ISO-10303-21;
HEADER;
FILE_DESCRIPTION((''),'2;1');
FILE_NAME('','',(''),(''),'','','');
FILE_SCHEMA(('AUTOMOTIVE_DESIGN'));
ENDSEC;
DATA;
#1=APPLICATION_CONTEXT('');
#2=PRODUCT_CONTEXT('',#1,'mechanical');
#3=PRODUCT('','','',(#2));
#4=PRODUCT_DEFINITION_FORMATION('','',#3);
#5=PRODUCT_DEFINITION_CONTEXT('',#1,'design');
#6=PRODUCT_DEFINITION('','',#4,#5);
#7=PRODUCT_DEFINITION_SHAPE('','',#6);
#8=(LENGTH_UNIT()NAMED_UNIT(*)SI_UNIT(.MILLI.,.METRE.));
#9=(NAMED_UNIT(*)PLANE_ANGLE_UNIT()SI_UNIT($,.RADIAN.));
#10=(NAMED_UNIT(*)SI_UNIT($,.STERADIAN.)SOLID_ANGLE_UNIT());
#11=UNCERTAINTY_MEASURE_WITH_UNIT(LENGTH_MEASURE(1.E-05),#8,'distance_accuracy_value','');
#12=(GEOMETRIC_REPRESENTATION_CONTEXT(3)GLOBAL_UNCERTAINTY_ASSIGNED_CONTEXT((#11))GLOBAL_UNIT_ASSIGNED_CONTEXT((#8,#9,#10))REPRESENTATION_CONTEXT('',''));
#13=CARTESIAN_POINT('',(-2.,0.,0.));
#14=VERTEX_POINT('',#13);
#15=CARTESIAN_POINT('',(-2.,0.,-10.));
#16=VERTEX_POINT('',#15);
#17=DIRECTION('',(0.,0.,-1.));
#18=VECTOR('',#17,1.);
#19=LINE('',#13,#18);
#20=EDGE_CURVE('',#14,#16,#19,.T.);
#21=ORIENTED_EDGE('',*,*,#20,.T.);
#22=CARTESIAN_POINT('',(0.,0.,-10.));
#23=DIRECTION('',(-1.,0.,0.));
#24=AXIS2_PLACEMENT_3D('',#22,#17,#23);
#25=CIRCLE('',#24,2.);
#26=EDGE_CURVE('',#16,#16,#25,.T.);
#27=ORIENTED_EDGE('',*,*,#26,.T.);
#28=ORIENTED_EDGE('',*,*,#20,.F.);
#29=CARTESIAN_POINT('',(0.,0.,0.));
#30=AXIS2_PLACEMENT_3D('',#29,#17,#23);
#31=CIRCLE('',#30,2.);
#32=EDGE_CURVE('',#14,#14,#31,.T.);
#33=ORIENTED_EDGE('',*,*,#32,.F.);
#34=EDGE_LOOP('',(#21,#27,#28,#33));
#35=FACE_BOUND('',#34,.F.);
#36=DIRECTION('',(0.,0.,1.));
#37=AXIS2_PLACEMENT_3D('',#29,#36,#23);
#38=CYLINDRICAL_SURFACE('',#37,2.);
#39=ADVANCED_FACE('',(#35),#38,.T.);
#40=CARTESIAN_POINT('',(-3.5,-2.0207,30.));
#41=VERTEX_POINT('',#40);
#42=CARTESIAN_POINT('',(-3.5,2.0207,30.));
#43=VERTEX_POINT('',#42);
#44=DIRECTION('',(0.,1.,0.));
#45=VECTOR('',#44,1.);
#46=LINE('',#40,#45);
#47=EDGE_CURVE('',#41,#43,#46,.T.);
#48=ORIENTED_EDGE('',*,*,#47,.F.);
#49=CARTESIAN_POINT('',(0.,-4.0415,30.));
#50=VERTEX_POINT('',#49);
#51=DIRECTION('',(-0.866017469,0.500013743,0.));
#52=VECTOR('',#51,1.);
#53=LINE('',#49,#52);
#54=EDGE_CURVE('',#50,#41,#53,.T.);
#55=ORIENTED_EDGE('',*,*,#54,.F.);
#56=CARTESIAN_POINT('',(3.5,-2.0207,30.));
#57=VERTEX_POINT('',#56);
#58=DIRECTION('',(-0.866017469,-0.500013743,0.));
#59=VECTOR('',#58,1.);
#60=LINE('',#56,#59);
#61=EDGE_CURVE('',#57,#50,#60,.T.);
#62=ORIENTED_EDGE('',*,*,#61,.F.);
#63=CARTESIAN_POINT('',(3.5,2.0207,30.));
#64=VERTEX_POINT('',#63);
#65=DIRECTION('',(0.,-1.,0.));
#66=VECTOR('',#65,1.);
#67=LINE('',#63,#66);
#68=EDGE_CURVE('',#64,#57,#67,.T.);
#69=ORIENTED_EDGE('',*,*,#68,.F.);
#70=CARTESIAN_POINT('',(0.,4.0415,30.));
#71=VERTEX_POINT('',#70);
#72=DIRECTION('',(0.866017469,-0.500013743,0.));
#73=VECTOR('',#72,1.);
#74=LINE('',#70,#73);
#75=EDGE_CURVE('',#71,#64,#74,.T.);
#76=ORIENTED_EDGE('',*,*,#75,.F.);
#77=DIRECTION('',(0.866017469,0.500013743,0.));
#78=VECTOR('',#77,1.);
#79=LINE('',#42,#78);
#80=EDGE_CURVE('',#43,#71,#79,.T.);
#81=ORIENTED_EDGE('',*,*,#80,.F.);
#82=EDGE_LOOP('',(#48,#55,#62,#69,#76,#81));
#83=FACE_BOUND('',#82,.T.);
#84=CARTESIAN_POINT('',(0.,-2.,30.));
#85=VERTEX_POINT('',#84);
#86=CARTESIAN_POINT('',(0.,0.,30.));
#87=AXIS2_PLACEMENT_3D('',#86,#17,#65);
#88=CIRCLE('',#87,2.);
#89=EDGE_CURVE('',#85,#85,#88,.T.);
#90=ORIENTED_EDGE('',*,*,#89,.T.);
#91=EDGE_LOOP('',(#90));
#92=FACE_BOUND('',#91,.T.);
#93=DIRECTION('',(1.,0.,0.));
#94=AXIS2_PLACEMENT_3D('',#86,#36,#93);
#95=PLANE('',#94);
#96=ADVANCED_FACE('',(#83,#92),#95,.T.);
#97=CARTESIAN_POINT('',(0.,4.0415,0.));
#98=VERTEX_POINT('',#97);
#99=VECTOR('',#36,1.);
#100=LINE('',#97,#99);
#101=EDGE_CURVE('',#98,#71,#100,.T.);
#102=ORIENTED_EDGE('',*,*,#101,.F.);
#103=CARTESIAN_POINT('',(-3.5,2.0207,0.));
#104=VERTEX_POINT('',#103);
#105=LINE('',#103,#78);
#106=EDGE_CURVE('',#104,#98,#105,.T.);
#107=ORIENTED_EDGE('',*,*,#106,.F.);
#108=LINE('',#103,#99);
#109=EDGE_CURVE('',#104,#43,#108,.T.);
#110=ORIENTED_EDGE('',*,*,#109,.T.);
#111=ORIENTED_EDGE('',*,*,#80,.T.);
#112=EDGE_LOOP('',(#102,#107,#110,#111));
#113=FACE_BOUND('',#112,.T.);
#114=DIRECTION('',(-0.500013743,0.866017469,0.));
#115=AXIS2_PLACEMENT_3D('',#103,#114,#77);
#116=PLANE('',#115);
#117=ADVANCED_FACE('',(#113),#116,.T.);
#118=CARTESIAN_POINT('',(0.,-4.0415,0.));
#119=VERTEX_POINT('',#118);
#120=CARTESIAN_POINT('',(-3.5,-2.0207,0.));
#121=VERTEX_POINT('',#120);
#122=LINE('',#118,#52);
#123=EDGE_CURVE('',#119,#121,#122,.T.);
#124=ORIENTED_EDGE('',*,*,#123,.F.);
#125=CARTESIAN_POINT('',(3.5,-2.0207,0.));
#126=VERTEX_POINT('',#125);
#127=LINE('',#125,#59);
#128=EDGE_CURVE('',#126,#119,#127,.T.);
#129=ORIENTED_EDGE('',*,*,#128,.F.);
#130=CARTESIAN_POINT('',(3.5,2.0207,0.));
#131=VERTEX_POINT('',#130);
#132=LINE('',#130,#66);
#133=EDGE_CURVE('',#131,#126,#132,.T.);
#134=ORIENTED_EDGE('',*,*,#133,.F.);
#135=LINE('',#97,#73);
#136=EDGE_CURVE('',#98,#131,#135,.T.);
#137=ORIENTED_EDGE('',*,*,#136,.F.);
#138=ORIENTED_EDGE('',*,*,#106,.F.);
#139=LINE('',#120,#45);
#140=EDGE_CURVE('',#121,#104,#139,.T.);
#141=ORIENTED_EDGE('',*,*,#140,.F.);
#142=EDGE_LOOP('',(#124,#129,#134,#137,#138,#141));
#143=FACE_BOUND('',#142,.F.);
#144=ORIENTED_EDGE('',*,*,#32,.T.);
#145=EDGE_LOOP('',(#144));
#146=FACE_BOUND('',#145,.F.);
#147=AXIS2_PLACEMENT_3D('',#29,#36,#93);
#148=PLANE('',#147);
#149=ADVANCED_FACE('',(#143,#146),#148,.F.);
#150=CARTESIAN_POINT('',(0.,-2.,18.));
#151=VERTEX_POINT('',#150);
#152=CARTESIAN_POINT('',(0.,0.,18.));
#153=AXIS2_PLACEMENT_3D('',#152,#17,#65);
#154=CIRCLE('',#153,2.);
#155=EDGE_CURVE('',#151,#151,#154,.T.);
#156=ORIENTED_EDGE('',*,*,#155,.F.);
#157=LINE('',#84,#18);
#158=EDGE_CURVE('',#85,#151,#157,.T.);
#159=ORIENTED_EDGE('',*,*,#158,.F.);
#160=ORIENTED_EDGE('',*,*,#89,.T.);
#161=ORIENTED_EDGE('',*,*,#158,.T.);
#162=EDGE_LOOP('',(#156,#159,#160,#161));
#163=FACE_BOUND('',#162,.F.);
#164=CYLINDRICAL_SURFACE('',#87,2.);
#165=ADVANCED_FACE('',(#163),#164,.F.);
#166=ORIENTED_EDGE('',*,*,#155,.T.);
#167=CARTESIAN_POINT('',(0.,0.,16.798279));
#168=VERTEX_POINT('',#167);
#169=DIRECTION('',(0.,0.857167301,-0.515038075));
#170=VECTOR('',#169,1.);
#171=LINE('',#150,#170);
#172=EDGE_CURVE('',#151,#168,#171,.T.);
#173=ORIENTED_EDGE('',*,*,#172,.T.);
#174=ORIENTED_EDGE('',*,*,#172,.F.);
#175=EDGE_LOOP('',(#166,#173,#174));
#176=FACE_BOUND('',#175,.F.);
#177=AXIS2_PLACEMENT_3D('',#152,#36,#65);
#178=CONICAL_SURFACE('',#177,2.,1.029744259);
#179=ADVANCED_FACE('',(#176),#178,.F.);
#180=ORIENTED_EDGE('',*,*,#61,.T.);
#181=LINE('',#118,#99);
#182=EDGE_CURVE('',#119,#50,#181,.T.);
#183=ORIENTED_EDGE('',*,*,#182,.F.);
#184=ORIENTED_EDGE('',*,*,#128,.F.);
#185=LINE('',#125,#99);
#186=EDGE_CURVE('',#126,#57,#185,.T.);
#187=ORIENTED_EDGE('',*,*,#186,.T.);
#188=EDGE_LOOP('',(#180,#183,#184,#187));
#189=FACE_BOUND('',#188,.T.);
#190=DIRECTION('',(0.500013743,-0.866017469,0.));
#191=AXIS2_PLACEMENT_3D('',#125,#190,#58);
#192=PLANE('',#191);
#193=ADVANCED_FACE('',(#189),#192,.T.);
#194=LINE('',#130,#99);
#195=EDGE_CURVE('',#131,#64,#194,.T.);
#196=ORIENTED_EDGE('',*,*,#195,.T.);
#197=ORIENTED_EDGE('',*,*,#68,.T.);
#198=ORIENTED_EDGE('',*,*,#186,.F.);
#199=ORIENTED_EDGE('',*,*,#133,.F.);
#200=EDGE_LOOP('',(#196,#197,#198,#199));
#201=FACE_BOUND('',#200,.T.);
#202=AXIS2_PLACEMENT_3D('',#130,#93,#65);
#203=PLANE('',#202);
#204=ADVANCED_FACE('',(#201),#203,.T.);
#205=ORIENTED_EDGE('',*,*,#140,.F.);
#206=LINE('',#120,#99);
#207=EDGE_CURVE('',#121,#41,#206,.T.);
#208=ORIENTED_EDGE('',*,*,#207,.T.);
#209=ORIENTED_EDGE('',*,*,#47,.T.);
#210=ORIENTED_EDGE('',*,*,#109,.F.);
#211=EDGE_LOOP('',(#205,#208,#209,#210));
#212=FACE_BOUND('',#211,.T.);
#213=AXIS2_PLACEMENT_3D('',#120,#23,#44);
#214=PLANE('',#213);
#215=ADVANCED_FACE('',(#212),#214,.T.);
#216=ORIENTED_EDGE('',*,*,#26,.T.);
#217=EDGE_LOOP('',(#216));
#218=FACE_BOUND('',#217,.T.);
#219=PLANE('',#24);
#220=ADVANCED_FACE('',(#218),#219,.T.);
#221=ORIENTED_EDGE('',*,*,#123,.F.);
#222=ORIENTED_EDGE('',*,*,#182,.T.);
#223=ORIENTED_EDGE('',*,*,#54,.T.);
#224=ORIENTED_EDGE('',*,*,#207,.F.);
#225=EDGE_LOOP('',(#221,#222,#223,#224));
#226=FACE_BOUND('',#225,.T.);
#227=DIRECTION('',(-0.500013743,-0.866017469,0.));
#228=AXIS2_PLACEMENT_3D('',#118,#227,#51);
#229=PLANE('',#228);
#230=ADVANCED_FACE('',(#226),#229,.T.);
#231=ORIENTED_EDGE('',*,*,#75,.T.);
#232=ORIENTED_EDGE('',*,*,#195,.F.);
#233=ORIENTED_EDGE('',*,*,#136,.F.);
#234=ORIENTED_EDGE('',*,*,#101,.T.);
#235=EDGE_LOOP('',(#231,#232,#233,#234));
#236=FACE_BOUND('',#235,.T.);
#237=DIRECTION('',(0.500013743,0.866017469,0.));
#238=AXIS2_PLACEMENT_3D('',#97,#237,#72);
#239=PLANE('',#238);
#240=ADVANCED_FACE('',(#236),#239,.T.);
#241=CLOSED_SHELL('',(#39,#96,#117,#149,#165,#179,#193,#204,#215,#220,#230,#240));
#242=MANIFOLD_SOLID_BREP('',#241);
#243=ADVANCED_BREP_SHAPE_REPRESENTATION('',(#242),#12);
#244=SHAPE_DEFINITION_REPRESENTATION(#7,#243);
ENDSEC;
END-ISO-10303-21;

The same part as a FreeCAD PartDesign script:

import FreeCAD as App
import Part
import Sketcher

V = App.Vector
Q = App.Units.Quantity

doc = App.newDocument("Part")
params = doc.addObject("Spreadsheet::Sheet", "Params")
for row, (alias, value) in enumerate([
    ("pad1_length", "30 mm"),
    ("sketch2_diameter", "4 mm"),
    ("hole_diameter", "4 mm"),
    ("hole_depth", "12 mm"),
    ("sketch3_diameter", "4 mm"),
    ("pad2_length", "10 mm"),
], start=1):
    params.set(f"A{row}", alias)
    params.set(f"B{row}", "=" + value)
    params.setAlias(f"B{row}", alias)

body = doc.addObject("PartDesign::Body", "Body")

# Sketch on XY plane
sketch1 = doc.addObject("Sketcher::SketchObject", "Sketch")
body.addObject(sketch1)
sketch1.AttachmentSupport = (doc.XY_Plane, [""])
sketch1.MapMode = "FlatFace"
sketch1.addGeometry([
    Part.LineSegment(V(0, -4, 0), V(3.5, -2, 0)),  # 0
    Part.LineSegment(V(3.5, -2, 0), V(3.5, 2, 0)),  # 1
    Part.LineSegment(V(3.5, 2, 0), V(0, 4, 0)),  # 2
    Part.LineSegment(V(0, 4, 0), V(-3.5, 2, 0)),  # 3
    Part.LineSegment(V(-3.5, 2, 0), V(-3.5, -2, 0)),  # 4
    Part.LineSegment(V(-3.5, -2, 0), V(0, -4, 0)),  # 5
], False)
sketch1.addConstraint([
    Sketcher.Constraint("Coincident", 0, 2, 1, 1),
    Sketcher.Constraint("Coincident", 1, 2, 2, 1),
    Sketcher.Constraint("Coincident", 2, 2, 3, 1),
    Sketcher.Constraint("Coincident", 3, 2, 4, 1),
    Sketcher.Constraint("Coincident", 4, 2, 5, 1),
    Sketcher.Constraint("Coincident", 5, 2, 0, 1),
    Sketcher.Constraint("Vertical", 1),
    Sketcher.Constraint("Vertical", 4),
    Sketcher.Constraint("Symmetric", 0, 2, 3, 2, -1, 1),
    Sketcher.Constraint("Symmetric", 2, 2, 5, 2, -1, 1),
    Sketcher.Constraint("PointOnObject", 2, 2, -2),
    Sketcher.Constraint("Parallel", 2, 5),
    Sketcher.Constraint("Horizontal", 1, 2, 3, 2),
    Sketcher.Constraint("DistanceX", 3, 2, 1, 2, Q("7 mm")),
    Sketcher.Constraint("Angle", 0, Q("30.001 deg")),
    Sketcher.Constraint("DistanceY", 1, 1, 1, 2, Q("4.0414 mm")),
])
pad1 = doc.addObject("PartDesign::Pad", "Pad")
body.addObject(pad1)
pad1.Profile = sketch1
pad1.setExpression("Length", "Params.pad1_length")

# Sketch on XY plane
sketch2 = doc.addObject("Sketcher::SketchObject", "Sketch001")
body.addObject(sketch2)
sketch2.AttachmentSupport = (doc.XY_Plane, [""])
sketch2.MapMode = "FlatFace"
sketch2.AttachmentOffset = App.Placement(V(0, 0, 30), App.Rotation())
sketch2.addGeometry(Part.Circle(V(0, 0, 0), V(0, 0, 1), 2), False)
sketch2.addConstraint([
    Sketcher.Constraint("Coincident", 0, 3, -1, 1),
    Sketcher.Constraint("Diameter", 0, Q("4 mm")),
])
sketch2.setExpression("Constraints[1]", "Params.sketch2_diameter")
doc.recompute()
hole = doc.addObject("PartDesign::Hole", "Hole")
body.addObject(hole)
hole.Profile = sketch2
hole.ThreadType = "None"
hole.setExpression("Diameter", "Params.hole_diameter")
hole.DepthType = "Dimension"
hole.setExpression("Depth", "Params.hole_depth")
hole.DrillPoint = "Angled"
hole.DrillPointAngle = 118

# Sketch on XY plane
sketch3 = doc.addObject("Sketcher::SketchObject", "Sketch002")
body.addObject(sketch3)
sketch3.AttachmentSupport = (doc.XY_Plane, [""])
sketch3.MapMode = "FlatFace"
sketch3.addGeometry(Part.Circle(V(0, 0, 0), V(0, 0, 1), 2), False)
sketch3.addConstraint([
    Sketcher.Constraint("Coincident", 0, 3, -1, 1),
    Sketcher.Constraint("Diameter", 0, Q("4 mm")),
])
sketch3.setExpression("Constraints[1]", "Params.sketch3_diameter")
pad2 = doc.addObject("PartDesign::Pad", "Pad001")
body.addObject(pad2)
pad2.Profile = sketch3
pad2.setExpression("Length", "Params.pad2_length")
pad2.Reversed = True

doc.recompute()
